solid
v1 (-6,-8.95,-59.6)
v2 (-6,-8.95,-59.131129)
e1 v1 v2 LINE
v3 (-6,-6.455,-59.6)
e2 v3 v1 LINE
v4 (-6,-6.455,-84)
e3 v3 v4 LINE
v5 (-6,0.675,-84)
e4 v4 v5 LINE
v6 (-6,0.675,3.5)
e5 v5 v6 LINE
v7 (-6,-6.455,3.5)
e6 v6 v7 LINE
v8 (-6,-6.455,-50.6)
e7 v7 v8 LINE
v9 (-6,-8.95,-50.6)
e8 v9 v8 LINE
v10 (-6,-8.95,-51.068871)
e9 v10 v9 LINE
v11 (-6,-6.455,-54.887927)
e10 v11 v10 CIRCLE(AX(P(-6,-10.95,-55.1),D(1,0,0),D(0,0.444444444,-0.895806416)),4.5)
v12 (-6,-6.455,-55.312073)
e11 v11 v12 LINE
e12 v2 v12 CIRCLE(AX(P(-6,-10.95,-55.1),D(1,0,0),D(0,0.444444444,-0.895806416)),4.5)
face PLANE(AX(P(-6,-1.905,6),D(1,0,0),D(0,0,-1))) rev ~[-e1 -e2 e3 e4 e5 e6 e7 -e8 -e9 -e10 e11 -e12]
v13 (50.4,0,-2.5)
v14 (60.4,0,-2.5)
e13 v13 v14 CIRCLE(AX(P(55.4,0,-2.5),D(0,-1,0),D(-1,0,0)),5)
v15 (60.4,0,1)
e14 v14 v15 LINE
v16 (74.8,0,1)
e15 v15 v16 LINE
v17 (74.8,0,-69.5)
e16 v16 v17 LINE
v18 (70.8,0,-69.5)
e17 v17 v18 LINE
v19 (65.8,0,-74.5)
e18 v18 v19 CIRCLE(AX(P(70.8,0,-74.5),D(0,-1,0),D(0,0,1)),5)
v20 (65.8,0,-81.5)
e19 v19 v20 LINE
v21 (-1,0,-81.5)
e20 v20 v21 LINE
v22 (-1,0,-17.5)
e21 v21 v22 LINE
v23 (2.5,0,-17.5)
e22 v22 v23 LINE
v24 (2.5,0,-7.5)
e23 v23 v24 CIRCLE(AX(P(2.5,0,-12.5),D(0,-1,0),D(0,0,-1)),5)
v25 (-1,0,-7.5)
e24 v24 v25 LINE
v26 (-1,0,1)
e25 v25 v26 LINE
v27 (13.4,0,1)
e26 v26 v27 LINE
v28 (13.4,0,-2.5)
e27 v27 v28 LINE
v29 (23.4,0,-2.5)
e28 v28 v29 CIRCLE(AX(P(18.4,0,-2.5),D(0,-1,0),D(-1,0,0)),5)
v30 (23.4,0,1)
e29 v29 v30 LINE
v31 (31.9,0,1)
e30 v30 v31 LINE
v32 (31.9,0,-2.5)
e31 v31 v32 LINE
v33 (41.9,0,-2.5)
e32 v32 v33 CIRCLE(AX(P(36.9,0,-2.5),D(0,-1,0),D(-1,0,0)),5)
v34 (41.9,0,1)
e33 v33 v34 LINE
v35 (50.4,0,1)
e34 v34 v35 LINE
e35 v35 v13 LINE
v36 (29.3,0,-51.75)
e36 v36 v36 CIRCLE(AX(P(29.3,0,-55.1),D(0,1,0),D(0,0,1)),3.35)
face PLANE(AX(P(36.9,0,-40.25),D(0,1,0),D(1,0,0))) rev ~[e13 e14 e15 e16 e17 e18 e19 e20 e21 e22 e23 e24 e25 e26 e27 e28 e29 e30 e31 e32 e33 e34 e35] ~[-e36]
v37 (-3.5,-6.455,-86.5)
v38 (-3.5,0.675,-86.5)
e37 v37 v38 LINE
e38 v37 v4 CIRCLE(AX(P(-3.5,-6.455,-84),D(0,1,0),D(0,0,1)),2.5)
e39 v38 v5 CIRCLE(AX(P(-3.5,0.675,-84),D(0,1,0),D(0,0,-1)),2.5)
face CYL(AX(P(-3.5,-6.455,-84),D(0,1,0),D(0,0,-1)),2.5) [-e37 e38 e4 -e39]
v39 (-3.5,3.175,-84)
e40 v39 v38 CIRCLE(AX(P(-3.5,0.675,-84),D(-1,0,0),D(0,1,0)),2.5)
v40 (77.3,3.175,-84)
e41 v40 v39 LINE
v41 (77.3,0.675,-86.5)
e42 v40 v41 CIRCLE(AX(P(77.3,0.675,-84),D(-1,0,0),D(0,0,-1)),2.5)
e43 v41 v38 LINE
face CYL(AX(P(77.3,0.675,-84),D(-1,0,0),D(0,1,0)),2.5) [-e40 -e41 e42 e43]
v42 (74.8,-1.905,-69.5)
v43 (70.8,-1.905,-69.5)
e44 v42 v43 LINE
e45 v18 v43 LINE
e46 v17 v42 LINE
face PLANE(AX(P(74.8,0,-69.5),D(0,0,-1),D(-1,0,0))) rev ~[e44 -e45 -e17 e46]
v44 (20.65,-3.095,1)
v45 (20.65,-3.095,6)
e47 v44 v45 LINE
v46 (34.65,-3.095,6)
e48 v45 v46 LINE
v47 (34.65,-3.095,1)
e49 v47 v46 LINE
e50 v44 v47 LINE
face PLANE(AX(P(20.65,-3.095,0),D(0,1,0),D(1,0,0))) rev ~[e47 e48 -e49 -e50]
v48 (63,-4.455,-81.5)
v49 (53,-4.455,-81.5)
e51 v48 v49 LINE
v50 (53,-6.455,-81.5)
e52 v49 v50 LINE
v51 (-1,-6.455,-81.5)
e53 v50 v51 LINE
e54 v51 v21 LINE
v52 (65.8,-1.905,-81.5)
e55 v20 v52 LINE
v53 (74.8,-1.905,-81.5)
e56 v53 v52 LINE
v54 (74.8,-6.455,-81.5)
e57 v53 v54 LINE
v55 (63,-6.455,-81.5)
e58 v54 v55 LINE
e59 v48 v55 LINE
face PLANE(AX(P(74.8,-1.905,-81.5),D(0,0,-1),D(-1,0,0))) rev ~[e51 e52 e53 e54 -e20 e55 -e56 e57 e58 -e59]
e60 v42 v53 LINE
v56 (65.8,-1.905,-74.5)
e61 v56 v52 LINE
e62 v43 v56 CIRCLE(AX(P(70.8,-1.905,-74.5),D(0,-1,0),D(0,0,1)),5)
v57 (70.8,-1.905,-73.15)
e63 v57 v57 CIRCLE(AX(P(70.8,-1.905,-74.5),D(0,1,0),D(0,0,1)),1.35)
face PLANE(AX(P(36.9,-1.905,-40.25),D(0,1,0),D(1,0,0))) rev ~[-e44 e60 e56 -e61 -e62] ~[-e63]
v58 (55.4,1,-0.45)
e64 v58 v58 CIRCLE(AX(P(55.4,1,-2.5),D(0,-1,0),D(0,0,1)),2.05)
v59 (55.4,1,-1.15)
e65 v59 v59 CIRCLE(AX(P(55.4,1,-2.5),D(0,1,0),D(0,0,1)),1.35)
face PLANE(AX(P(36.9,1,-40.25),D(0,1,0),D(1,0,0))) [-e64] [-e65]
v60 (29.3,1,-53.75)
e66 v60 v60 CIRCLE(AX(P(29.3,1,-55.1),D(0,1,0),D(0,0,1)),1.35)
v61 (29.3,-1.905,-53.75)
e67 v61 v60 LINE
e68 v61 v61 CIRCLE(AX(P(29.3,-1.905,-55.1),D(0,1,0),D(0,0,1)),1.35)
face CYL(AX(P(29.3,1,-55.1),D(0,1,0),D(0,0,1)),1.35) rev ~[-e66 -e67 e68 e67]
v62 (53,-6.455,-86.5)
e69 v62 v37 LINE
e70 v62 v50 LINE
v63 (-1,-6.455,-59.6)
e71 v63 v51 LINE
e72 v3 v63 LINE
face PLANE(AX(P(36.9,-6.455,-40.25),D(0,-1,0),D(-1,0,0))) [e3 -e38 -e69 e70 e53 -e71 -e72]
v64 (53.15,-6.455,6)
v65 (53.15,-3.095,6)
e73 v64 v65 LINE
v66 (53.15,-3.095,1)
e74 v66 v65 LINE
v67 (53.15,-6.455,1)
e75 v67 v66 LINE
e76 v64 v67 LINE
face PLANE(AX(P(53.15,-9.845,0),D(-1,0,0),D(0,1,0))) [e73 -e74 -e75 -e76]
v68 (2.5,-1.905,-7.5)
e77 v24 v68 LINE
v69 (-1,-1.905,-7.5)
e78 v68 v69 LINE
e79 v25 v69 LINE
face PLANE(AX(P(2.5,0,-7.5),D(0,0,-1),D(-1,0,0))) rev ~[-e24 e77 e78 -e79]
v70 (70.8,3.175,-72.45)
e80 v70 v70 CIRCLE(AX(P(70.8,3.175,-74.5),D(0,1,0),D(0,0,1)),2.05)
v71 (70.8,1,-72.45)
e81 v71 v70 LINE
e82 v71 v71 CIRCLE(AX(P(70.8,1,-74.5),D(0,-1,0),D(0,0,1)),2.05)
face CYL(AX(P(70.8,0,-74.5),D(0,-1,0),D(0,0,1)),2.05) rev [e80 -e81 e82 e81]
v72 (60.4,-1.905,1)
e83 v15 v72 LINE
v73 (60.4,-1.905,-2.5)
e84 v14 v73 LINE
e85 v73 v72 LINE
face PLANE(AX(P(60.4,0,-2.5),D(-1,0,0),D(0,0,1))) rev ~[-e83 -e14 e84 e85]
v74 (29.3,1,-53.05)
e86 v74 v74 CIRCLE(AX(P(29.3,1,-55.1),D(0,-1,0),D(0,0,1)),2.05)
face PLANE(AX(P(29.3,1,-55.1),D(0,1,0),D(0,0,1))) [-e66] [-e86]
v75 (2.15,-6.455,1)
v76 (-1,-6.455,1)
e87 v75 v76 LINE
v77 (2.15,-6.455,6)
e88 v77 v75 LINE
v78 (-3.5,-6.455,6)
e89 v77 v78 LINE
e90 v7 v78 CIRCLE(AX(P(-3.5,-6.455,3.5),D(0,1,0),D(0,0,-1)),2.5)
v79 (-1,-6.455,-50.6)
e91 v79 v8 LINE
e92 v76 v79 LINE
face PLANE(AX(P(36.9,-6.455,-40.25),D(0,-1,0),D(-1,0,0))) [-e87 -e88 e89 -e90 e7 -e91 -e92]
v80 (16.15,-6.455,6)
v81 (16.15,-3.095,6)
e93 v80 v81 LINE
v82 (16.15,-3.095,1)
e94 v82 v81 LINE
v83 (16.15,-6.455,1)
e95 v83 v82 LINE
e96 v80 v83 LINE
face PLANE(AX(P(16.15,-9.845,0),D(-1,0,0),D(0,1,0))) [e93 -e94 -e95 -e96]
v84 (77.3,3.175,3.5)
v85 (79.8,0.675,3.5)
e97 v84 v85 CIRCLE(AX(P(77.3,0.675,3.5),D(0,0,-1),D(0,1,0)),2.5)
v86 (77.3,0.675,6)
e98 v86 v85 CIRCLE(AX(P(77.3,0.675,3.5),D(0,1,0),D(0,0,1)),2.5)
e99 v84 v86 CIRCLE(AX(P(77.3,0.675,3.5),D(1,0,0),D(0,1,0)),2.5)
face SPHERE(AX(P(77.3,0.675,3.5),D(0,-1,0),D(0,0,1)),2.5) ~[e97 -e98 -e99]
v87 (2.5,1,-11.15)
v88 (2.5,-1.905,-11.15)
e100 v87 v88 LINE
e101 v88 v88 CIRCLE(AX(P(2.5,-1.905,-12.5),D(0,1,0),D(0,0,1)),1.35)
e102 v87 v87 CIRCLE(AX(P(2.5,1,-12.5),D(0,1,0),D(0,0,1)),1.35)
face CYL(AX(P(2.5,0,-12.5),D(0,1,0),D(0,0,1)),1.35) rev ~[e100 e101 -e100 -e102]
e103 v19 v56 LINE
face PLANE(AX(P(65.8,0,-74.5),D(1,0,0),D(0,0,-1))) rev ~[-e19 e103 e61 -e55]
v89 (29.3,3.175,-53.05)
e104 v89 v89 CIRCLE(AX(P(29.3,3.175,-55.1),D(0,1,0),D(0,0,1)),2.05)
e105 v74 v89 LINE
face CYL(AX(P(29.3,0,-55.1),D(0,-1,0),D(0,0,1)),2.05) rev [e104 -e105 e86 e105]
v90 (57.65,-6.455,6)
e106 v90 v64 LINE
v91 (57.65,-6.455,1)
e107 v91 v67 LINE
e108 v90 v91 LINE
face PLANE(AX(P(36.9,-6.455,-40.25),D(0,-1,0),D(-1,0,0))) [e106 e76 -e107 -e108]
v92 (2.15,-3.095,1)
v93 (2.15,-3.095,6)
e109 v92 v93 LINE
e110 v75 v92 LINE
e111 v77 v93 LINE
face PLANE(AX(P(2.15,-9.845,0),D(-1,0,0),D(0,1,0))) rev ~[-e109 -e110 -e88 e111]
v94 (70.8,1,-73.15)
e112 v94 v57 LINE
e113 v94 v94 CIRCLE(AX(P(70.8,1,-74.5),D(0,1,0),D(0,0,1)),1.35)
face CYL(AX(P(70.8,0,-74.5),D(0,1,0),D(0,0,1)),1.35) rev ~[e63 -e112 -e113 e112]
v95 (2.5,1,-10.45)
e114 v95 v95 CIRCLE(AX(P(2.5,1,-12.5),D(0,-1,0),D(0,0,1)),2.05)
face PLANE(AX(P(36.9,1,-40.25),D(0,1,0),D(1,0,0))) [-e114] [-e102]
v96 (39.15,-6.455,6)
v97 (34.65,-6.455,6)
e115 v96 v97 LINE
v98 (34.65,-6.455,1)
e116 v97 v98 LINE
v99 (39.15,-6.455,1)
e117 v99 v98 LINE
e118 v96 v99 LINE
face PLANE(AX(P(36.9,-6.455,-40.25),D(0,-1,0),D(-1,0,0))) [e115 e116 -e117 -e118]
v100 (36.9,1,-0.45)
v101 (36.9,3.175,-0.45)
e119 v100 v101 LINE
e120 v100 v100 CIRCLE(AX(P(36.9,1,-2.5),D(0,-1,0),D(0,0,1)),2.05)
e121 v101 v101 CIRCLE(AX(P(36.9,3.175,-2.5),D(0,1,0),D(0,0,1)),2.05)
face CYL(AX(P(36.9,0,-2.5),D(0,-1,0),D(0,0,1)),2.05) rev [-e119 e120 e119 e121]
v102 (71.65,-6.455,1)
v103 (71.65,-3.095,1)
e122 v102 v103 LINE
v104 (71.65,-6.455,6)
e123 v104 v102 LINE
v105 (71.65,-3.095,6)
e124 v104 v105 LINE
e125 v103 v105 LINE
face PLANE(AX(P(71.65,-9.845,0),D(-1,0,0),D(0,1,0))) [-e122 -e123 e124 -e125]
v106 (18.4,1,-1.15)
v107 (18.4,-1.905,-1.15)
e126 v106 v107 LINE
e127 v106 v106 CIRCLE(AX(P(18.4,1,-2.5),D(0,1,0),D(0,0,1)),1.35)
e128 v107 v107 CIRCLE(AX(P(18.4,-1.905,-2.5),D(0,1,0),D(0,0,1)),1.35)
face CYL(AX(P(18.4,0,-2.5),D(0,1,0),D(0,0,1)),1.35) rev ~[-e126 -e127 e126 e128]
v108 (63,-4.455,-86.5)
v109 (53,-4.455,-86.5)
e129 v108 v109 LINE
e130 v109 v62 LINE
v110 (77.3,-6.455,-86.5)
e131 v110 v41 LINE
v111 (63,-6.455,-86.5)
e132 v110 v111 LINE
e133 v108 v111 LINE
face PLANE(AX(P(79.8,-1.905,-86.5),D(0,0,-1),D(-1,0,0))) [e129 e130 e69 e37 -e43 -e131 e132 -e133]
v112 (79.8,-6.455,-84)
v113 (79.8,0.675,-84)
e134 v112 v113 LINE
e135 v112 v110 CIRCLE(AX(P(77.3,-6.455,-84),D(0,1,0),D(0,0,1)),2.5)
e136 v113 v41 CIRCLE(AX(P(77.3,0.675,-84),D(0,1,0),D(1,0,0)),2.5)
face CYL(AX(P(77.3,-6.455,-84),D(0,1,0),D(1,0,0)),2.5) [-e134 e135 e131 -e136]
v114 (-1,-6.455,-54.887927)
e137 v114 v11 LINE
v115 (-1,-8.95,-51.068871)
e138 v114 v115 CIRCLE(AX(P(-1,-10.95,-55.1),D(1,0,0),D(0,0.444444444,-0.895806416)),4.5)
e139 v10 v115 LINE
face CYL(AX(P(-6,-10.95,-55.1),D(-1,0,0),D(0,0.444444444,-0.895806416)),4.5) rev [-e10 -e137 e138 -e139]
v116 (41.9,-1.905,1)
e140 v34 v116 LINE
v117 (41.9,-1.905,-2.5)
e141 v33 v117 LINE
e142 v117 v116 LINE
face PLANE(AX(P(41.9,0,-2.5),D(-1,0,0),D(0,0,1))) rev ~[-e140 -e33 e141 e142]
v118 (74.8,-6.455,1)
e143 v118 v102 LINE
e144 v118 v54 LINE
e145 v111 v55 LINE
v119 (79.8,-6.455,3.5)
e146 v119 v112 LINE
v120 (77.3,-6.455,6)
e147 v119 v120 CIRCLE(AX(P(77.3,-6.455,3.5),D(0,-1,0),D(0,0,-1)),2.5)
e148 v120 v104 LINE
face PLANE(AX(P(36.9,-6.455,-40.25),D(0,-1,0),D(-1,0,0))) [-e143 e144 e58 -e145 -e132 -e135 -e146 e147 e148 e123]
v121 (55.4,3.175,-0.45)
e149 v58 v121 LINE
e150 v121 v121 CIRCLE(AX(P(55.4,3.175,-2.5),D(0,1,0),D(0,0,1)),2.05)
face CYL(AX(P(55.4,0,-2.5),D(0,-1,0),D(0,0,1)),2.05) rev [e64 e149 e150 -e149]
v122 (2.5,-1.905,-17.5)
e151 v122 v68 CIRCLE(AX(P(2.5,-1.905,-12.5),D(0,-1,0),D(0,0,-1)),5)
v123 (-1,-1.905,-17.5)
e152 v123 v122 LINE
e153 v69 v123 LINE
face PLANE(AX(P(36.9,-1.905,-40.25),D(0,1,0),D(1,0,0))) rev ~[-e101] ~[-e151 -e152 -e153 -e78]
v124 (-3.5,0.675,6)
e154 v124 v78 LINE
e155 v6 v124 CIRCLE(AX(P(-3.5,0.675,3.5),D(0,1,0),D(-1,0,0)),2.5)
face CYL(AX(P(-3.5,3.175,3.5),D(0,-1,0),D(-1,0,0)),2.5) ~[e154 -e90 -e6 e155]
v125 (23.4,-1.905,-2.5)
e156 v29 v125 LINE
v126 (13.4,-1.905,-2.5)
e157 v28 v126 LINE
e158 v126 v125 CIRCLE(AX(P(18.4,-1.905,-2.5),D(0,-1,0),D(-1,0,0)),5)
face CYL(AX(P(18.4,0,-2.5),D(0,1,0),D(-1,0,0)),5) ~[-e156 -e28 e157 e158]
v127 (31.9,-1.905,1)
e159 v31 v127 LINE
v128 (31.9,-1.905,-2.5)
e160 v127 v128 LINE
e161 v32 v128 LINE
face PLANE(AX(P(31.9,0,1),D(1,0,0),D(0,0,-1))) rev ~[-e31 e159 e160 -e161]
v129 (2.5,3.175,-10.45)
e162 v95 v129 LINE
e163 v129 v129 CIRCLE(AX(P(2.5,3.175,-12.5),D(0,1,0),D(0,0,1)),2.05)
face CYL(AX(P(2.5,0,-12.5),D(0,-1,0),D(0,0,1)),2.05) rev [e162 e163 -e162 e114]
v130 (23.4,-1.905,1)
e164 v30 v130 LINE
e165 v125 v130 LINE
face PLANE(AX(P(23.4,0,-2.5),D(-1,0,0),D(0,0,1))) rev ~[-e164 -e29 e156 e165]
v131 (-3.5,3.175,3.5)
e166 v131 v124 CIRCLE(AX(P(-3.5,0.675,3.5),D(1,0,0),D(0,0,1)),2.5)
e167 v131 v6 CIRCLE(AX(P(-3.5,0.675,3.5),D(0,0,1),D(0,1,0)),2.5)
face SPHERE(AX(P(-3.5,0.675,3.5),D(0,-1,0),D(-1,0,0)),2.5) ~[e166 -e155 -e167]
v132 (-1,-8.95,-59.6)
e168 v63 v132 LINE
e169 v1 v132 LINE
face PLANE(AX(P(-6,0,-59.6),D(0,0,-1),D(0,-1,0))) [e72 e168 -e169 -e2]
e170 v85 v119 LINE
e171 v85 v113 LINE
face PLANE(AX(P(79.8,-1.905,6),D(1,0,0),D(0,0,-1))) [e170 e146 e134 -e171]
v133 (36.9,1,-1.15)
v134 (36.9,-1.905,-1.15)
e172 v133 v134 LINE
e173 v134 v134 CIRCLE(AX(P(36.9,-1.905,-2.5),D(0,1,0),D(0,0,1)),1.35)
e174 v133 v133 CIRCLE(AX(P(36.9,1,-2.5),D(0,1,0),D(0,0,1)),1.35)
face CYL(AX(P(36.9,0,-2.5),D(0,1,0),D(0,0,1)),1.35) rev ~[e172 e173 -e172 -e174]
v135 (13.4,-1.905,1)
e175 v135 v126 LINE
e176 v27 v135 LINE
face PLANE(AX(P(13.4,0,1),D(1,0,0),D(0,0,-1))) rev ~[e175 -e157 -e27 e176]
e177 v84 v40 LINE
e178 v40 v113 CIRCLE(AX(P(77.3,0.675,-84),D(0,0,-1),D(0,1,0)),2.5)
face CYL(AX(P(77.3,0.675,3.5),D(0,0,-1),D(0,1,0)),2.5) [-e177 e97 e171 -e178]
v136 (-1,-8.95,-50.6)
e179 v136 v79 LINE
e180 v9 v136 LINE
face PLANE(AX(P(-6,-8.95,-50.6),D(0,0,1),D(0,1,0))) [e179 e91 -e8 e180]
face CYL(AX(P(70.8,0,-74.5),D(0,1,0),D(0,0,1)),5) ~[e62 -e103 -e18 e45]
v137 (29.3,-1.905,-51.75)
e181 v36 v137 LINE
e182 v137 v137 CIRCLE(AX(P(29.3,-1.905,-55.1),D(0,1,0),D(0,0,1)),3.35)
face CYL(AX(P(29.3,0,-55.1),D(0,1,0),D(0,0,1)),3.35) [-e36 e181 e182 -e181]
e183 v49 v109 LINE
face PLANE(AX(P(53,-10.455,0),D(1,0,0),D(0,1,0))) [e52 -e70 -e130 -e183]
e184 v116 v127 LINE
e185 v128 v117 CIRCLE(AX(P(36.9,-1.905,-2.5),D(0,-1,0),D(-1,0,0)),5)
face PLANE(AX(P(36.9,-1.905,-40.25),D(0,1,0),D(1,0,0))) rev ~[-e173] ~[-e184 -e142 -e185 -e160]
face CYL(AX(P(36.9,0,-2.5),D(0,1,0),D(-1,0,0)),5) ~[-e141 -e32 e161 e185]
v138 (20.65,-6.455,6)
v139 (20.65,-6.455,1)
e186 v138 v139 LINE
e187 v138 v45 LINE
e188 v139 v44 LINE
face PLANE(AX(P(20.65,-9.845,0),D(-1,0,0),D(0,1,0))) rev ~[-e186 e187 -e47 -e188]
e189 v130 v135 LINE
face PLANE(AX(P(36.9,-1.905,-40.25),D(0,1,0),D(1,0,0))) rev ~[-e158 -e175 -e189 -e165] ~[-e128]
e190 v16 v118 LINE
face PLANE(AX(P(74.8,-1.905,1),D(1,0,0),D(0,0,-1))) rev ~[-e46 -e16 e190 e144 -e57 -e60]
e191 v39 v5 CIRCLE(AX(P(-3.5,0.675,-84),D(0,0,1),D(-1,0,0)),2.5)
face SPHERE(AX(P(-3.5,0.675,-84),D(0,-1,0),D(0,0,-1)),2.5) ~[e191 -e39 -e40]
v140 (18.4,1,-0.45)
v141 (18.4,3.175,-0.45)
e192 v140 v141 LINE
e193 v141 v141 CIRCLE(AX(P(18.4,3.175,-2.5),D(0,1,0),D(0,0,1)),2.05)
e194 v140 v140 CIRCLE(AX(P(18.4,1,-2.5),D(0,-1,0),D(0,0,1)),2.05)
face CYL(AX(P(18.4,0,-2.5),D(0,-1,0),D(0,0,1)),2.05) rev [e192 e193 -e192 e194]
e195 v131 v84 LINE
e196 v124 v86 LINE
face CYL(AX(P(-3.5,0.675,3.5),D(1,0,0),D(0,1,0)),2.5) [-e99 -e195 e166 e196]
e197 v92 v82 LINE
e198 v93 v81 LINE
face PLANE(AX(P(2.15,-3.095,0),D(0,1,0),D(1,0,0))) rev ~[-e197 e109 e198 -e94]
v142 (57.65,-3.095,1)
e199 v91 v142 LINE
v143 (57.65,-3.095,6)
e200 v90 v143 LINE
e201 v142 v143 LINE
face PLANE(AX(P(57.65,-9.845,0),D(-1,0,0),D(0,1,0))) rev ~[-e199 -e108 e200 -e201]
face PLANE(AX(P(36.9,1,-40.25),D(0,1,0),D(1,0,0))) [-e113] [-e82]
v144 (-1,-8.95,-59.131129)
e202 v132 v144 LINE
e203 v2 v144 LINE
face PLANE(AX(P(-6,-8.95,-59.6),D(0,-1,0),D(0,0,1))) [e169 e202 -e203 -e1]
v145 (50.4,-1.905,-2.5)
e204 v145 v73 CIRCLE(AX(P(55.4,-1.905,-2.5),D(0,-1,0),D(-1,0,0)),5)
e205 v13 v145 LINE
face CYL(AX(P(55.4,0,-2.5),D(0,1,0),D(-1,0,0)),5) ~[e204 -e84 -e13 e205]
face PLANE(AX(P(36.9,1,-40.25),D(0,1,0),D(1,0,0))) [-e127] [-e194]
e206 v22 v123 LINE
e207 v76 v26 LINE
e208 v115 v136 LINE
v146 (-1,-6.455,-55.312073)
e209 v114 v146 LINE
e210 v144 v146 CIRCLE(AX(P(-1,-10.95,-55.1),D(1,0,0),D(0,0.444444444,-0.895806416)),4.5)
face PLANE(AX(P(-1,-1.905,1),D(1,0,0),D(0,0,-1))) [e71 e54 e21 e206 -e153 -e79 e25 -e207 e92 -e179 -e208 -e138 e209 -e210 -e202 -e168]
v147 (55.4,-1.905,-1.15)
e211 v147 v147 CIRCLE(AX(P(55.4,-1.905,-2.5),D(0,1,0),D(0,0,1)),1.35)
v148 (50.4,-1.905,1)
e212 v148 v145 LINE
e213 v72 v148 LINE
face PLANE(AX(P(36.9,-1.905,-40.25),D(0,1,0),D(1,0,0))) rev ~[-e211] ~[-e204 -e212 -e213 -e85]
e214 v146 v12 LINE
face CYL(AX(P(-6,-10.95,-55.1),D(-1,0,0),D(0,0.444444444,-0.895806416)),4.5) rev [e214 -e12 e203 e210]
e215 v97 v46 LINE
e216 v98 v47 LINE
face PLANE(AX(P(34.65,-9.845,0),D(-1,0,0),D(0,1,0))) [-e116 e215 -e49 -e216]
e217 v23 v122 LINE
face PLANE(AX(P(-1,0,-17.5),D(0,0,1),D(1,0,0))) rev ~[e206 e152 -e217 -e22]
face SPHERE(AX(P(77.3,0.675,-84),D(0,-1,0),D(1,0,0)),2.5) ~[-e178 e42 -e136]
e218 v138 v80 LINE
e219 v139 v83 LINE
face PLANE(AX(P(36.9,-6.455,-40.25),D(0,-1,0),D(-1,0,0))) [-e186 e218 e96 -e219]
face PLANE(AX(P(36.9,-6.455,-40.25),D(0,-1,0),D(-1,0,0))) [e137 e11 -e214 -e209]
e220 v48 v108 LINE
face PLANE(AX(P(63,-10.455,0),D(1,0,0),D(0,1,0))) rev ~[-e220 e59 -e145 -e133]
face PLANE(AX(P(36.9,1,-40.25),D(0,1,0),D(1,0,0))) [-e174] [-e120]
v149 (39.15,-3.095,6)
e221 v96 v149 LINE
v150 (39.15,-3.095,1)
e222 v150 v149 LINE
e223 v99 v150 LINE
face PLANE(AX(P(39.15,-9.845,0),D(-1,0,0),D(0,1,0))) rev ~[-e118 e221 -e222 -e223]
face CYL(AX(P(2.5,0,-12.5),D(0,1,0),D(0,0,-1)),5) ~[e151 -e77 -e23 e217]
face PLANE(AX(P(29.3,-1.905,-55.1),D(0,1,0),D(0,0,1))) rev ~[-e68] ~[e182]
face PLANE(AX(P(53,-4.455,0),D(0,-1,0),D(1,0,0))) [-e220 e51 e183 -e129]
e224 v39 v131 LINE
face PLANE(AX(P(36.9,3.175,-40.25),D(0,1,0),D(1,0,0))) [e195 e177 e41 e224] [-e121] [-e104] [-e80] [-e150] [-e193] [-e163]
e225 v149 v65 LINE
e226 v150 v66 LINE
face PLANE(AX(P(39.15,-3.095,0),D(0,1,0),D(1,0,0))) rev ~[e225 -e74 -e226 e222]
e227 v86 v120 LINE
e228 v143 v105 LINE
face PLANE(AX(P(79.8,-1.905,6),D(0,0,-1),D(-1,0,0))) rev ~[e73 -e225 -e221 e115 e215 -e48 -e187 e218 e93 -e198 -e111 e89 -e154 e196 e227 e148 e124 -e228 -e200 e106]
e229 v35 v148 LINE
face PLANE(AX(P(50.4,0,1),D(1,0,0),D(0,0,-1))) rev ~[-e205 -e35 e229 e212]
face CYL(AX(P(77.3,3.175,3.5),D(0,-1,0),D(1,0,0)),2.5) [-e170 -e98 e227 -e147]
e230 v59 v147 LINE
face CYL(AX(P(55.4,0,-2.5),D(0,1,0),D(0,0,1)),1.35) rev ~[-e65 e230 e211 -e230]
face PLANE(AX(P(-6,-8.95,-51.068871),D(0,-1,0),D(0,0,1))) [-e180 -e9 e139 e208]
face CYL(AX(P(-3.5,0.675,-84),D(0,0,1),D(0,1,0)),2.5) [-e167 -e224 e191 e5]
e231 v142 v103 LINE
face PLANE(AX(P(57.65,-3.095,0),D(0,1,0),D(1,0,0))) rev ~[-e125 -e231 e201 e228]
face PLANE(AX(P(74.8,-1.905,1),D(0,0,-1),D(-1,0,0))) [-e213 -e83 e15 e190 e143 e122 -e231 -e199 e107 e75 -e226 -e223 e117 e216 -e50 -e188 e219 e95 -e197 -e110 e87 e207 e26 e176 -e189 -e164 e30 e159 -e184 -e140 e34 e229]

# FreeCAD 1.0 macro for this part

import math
import FreeCAD as App
import Part
import Sketcher

V = App.Vector


def edges_at(feature, points):
    """Names of the edges that pass closest to the given points."""
    edges = feature.Shape.Edges
    near = lambda p: min(range(len(edges)), key=lambda i: edges[i].distToShape(Part.Vertex(*p))[0])
    return sorted({f"Edge{near(p) + 1}" for p in points})


def add_polygon(sketch, points):
    """Adds a closed chain of lines whose ends are joined by coincident constraints."""
    first, n = sketch.GeometryCount, len(points)
    for a, b in zip(points, points[1:] + points[:1]):
        sketch.addGeometry(Part.LineSegment(App.Vector(*a, 0), App.Vector(*b, 0)), False)
    for i in range(n):
        sketch.addConstraint(Sketcher.Constraint("Coincident", first + i, 2, first + (i + 1) % n, 1))

doc = App.newDocument("Part")
body = doc.addObject("PartDesign::Body", "Body")

# Sketch on XZ plane
sketch1 = body.newObject("Sketcher::SketchObject", "Sketch")
sketch1.AttachmentSupport = (doc.getObject("XZ_Plane"), [""])
sketch1.MapMode = "FlatFace"
add_polygon(sketch1, [(-6, -86.5), (-6, 6), (79.8, 6), (79.8, -86.5)])  # lines 0-3
sketch1.addGeometry(Part.Circle(V(18.4, -2.5, 0), V(0, 0, 1), 2), False)  # 4
sketch1.addGeometry(Part.Circle(V(2.5, -12.5, 0), V(0, 0, 1), 2), False)  # 5
sketch1.addGeometry(Part.Circle(V(36.9, -2.5, 0), V(0, 0, 1), 2), False)  # 6
sketch1.addGeometry(Part.Circle(V(55.4, -2.5, 0), V(0, 0, 1), 2), False)  # 7
sketch1.addGeometry(Part.Circle(V(29.3, -55.1, 0), V(0, 0, 1), 2), False)  # 8
sketch1.addGeometry(Part.Circle(V(70.8, -74.5, 0), V(0, 0, 1), 2), False)  # 9
sketch1.addConstraint([
    Sketcher.Constraint("Vertical", 0),
    Sketcher.Constraint("Horizontal", 1),
    Sketcher.Constraint("Vertical", 2),
    Sketcher.Constraint("Horizontal", 3),
    Sketcher.Constraint("Equal", 4, 5),
    Sketcher.Constraint("Equal", 5, 6),
    Sketcher.Constraint("Equal", 6, 7),
    Sketcher.Constraint("Equal", 7, 8),
    Sketcher.Constraint("Equal", 8, 9),
    Sketcher.Constraint("Horizontal", 4, 3, 6, 3),
    Sketcher.Constraint("Horizontal", 6, 3, 7, 3),
    Sketcher.Constraint("Diameter", 4, 4.1),
    Sketcher.Constraint("DistanceX", 1, 1, 1, 2, 85.8),
    Sketcher.Constraint("DistanceY", 0, 1, 0, 2, 92.5),
    Sketcher.Constraint("DistanceX", 0, 2, -1, 1, 6.0),
    Sketcher.Constraint("DistanceY", -1, 1, 0, 2, 6.0),
    Sketcher.Constraint("DistanceY", 5, 3, 4, 3, 10.0),
    Sketcher.Constraint("DistanceX", 4, 3, 7, 3, 37.0),
    Sketcher.Constraint("DistanceY", 9, 3, 7, 3, 72.0),
    Sketcher.Constraint("DistanceX", 9, 3, 2, 2, 9.0),
    Sketcher.Constraint("DistanceY", 2, 2, 9, 3, 12.0),
    Sketcher.Constraint("DistanceX", -1, 1, 4, 3, 18.4),
    Sketcher.Constraint("DistanceX", -1, 1, 5, 3, 2.5),
    Sketcher.Constraint("DistanceX", -1, 1, 6, 3, 36.9),
    Sketcher.Constraint("DistanceX", -1, 1, 8, 3, 29.3),
    Sketcher.Constraint("DistanceY", 8, 3, -1, 1, 55.1),
])
pad1 = body.newObject("PartDesign::Pad", "Pad")
pad1.Profile = sketch1
pad1.Length = 3.175
pad1.Reversed = True

# Sketch on XZ plane
sketch2 = body.newObject("Sketcher::SketchObject", "Sketch001")
sketch2.AttachmentSupport = (doc.getObject("XZ_Plane"), [""])
sketch2.MapMode = "FlatFace"
add_polygon(sketch2, [(-6, -86.5), (-6, 6), (79.8, 6), (79.8, -86.5)])  # lines 0-3
sketch2.addGeometry(Part.Circle(V(2.5, -12.5, 0), V(0, 0, 1), 1.4), False)  # 4
sketch2.addGeometry(Part.Circle(V(18.4, -2.5, 0), V(0, 0, 1), 1.4), False)  # 5
sketch2.addGeometry(Part.Circle(V(36.9, -2.5, 0), V(0, 0, 1), 1.4), False)  # 6
sketch2.addGeometry(Part.Circle(V(55.4, -2.5, 0), V(0, 0, 1), 1.4), False)  # 7
sketch2.addGeometry(Part.LineSegment(V(65.8, -81.5, 0), V(65.8, -74.5, 0)), False)  # 8
sketch2.addGeometry(Part.ArcOfCircle(Part.Circle(V(70.8, -74.5, 0), V(0, 0, 1), 5), math.radians(90), math.radians(180)), False)  # 9
sketch2.addGeometry(Part.LineSegment(V(70.8, -69.5, 0), V(74.8, -69.5, 0)), False)  # 10
sketch2.addGeometry(Part.LineSegment(V(74.8, -69.5, 0), V(74.8, 1, 0)), False)  # 11
sketch2.addGeometry(Part.LineSegment(V(74.8, 1, 0), V(60.4, 1, 0)), False)  # 12
sketch2.addGeometry(Part.LineSegment(V(60.4, 1, 0), V(60.4, -2.5, 0)), False)  # 13
sketch2.addGeometry(Part.ArcOfCircle(Part.Circle(V(55.4, -2.5, 0), V(0, 0, 1), 5), math.radians(180), math.radians(360)), False)  # 14
sketch2.addGeometry(Part.LineSegment(V(50.4, -2.5, 0), V(50.4, 1, 0)), False)  # 15
sketch2.addGeometry(Part.LineSegment(V(50.4, 1, 0), V(41.9, 1, 0)), False)  # 16
sketch2.addGeometry(Part.LineSegment(V(41.9, 1, 0), V(41.9, -2.5, 0)), False)  # 17
sketch2.addGeometry(Part.ArcOfCircle(Part.Circle(V(36.9, -2.5, 0), V(0, 0, 1), 5), math.radians(180), math.radians(360)), False)  # 18
sketch2.addGeometry(Part.LineSegment(V(31.9, -2.5, 0), V(31.9, 1, 0)), False)  # 19
sketch2.addGeometry(Part.LineSegment(V(31.9, 1, 0), V(23.4, 1, 0)), False)  # 20
sketch2.addGeometry(Part.LineSegment(V(23.4, 1, 0), V(23.4, -2.5, 0)), False)  # 21
sketch2.addGeometry(Part.ArcOfCircle(Part.Circle(V(18.4, -2.5, 0), V(0, 0, 1), 5), math.radians(180), math.radians(360)), False)  # 22
sketch2.addGeometry(Part.LineSegment(V(13.4, -2.5, 0), V(13.4, 1, 0)), False)  # 23
sketch2.addGeometry(Part.LineSegment(V(13.4, 1, 0), V(-1, 1, 0)), False)  # 24
sketch2.addGeometry(Part.LineSegment(V(-1, 1, 0), V(-1, -7.5, 0)), False)  # 25
sketch2.addGeometry(Part.LineSegment(V(-1, -7.5, 0), V(2.5, -7.5, 0)), False)  # 26
sketch2.addGeometry(Part.ArcOfCircle(Part.Circle(V(2.5, -12.5, 0), V(0, 0, 1), 5), math.radians(-90), math.radians(90)), False)  # 27
sketch2.addGeometry(Part.LineSegment(V(2.5, -17.5, 0), V(-1, -17.5, 0)), False)  # 28
sketch2.addGeometry(Part.LineSegment(V(-1, -17.5, 0), V(-1, -81.5, 0)), False)  # 29
sketch2.addGeometry(Part.LineSegment(V(-1, -81.5, 0), V(65.8, -81.5, 0)), False)  # 30
sketch2.addGeometry(Part.Circle(V(70.8, -74.5, 0), V(0, 0, 1), 1.4), False)  # 31
sketch2.addGeometry(Part.Circle(V(29.3, -55.1, 0), V(0, 0, 1), 3.4), False)  # 32
sketch2.addGeometry(Part.Circle(V(29.3, -55.1, 0), V(0, 0, 1), 1.4), False)  # 33
sketch2.addConstraint([
    Sketcher.Constraint("Tangent", 8, 2, 9, 2),
    Sketcher.Constraint("Tangent", 9, 1, 10, 1),
    Sketcher.Constraint("Coincident", 10, 2, 11, 1),
    Sketcher.Constraint("Coincident", 11, 2, 12, 1),
    Sketcher.Constraint("Coincident", 12, 2, 13, 1),
    Sketcher.Constraint("Tangent", 13, 2, 14, 2),
    Sketcher.Constraint("Tangent", 14, 1, 15, 1),
    Sketcher.Constraint("Coincident", 15, 2, 16, 1),
    Sketcher.Constraint("Coincident", 16, 2, 17, 1),
    Sketcher.Constraint("Tangent", 17, 2, 18, 2),
    Sketcher.Constraint("Tangent", 18, 1, 19, 1),
    Sketcher.Constraint("Coincident", 19, 2, 20, 1),
    Sketcher.Constraint("Coincident", 20, 2, 21, 1),
    Sketcher.Constraint("Tangent", 21, 2, 22, 2),
    Sketcher.Constraint("Tangent", 22, 1, 23, 1),
    Sketcher.Constraint("Coincident", 23, 2, 24, 1),
    Sketcher.Constraint("Coincident", 24, 2, 25, 1),
    Sketcher.Constraint("Coincident", 25, 2, 26, 1),
    Sketcher.Constraint("Tangent", 26, 2, 27, 2),
    Sketcher.Constraint("Tangent", 27, 1, 28, 1),
    Sketcher.Constraint("Coincident", 28, 2, 29, 1),
    Sketcher.Constraint("Coincident", 29, 2, 30, 1),
    Sketcher.Constraint("Coincident", 30, 2, 8, 1),
    Sketcher.Constraint("Vertical", 0),
    Sketcher.Constraint("Horizontal", 1),
    Sketcher.Constraint("Vertical", 2),
    Sketcher.Constraint("Horizontal", 3),
    Sketcher.Constraint("Vertical", 8),
    Sketcher.Constraint("Horizontal", 10),
    Sketcher.Constraint("Vertical", 11),
    Sketcher.Constraint("Horizontal", 12),
    Sketcher.Constraint("Vertical", 13),
    Sketcher.Constraint("Vertical", 15),
    Sketcher.Constraint("Horizontal", 16),
    Sketcher.Constraint("Vertical", 17),
    Sketcher.Constraint("Vertical", 19),
    Sketcher.Constraint("Horizontal", 20),
    Sketcher.Constraint("Vertical", 21),
    Sketcher.Constraint("Vertical", 23),
    Sketcher.Constraint("Horizontal", 24),
    Sketcher.Constraint("Vertical", 25),
    Sketcher.Constraint("Horizontal", 26),
    Sketcher.Constraint("Horizontal", 28),
    Sketcher.Constraint("Vertical", 29),
    Sketcher.Constraint("Horizontal", 30),
    Sketcher.Constraint("Coincident", 14, 3, 7, 3),
    Sketcher.Constraint("Coincident", 18, 3, 6, 3),
    Sketcher.Constraint("Coincident", 22, 3, 5, 3),
    Sketcher.Constraint("Coincident", 27, 3, 4, 3),
    Sketcher.Constraint("Coincident", 31, 3, 9, 3),
    Sketcher.Constraint("Coincident", 33, 3, 32, 3),
    Sketcher.Constraint("Equal", 4, 5),
    Sketcher.Constraint("Equal", 5, 6),
    Sketcher.Constraint("Equal", 6, 7),
    Sketcher.Constraint("Equal", 9, 14),
    Sketcher.Constraint("Equal", 14, 18),
    Sketcher.Constraint("Equal", 18, 22),
    Sketcher.Constraint("Equal", 22, 27),
    Sketcher.Constraint("Equal", 7, 31),
    Sketcher.Constraint("Equal", 31, 33),
    Sketcher.Constraint("Horizontal", 5, 3, 6, 3),
    Sketcher.Constraint("Horizontal", 6, 3, 7, 3),
    Sketcher.Constraint("Horizontal", 12, 2, 15, 2),
    Sketcher.Constraint("Horizontal", 16, 2, 19, 2),
    Sketcher.Constraint("Horizontal", 20, 2, 23, 2),
    Sketcher.Constraint("Vertical", 25, 2, 28, 2),
    Sketcher.Constraint("Equal", 16, 20),
    Sketcher.Constraint("Equal", 12, 24),
    Sketcher.Constraint("Equal", 28, 13),
    Sketcher.Constraint("Equal", 20, 25),
    Sketcher.Constraint("Radius", 9, 5.0),
    Sketcher.Constraint("Diameter", 4, 2.7),
    Sketcher.Constraint("Diameter", 32, 6.7),
    Sketcher.Constraint("DistanceX", 10, 1, 10, 2, 4.0),
    Sketcher.Constraint("DistanceY", 8, 1, 8, 2, 7.0),
    Sketcher.Constraint("DistanceY", 29, 2, 29, 1, 64.0),
    Sketcher.Constraint("DistanceX", 1, 1, 1, 2, 85.8),
    Sketcher.Constraint("DistanceX", 12, 2, 12, 1, 14.4),
    Sketcher.Constraint("DistanceX", 16, 2, 16, 1, 8.5),
    Sketcher.Constraint("DistanceX", 26, 1, 26, 2, 3.5),
    Sketcher.Constraint("DistanceY", 0, 1, 0, 2, 92.5),
    Sketcher.Constraint("DistanceX", 0, 2, -1, 1, 6.0),
    Sketcher.Constraint("DistanceY", -1, 1, 0, 2, 6.0),
    Sketcher.Constraint("DistanceY", -1, 1, 11, 2, 1.0),
    Sketcher.Constraint("DistanceX", 24, 2, -1, 1, 1.0),
    Sketcher.Constraint("DistanceX", -1, 1, 32, 3, 29.3),
    Sketcher.Constraint("DistanceY", 32, 3, -1, 1, 55.1),
])
pad2 = body.newObject("PartDesign::Pad", "Pad001")
pad2.Profile = sketch2
pad2.Length = 1.905

# Sketch on XZ plane
sketch3 = body.newObject("Sketcher::SketchObject", "Sketch002")
sketch3.AttachmentSupport = (doc.getObject("XZ_Plane"), [""])
sketch3.MapMode = "FlatFace"
sketch3.AttachmentOffset = App.Placement(V(0, 0, -1), App.Rotation())
add_polygon(sketch3, [(-6, -86.5), (-6, 6), (79.8, 6), (79.8, -86.5)])  # lines 0-3
sketch3.addGeometry(Part.Circle(V(2.5, -12.5, 0), V(0, 0, 1), 1.4), False)  # 4
sketch3.addGeometry(Part.Circle(V(18.4, -2.5, 0), V(0, 0, 1), 1.4), False)  # 5
sketch3.addGeometry(Part.Circle(V(36.9, -2.5, 0), V(0, 0, 1), 1.4), False)  # 6
sketch3.addGeometry(Part.Circle(V(55.4, -2.5, 0), V(0, 0, 1), 1.4), False)  # 7
sketch3.addGeometry(Part.LineSegment(V(65.8, -81.5, 0), V(65.8, -74.5, 0)), False)  # 8
sketch3.addGeometry(Part.ArcOfCircle(Part.Circle(V(70.8, -74.5, 0), V(0, 0, 1), 5), math.radians(90), math.radians(180)), False)  # 9
sketch3.addGeometry(Part.LineSegment(V(70.8, -69.5, 0), V(74.8, -69.5, 0)), False)  # 10
sketch3.addGeometry(Part.LineSegment(V(74.8, -69.5, 0), V(74.8, 1, 0)), False)  # 11
sketch3.addGeometry(Part.LineSegment(V(74.8, 1, 0), V(60.4, 1, 0)), False)  # 12
sketch3.addGeometry(Part.LineSegment(V(60.4, 1, 0), V(60.4, -2.5, 0)), False)  # 13
sketch3.addGeometry(Part.ArcOfCircle(Part.Circle(V(55.4, -2.5, 0), V(0, 0, 1), 5), math.radians(180), math.radians(360)), False)  # 14
sketch3.addGeometry(Part.LineSegment(V(50.4, -2.5, 0), V(50.4, 1, 0)), False)  # 15
sketch3.addGeometry(Part.LineSegment(V(50.4, 1, 0), V(41.9, 1, 0)), False)  # 16
sketch3.addGeometry(Part.LineSegment(V(41.9, 1, 0), V(41.9, -2.5, 0)), False)  # 17
sketch3.addGeometry(Part.ArcOfCircle(Part.Circle(V(36.9, -2.5, 0), V(0, 0, 1), 5), math.radians(180), math.radians(360)), False)  # 18
sketch3.addGeometry(Part.LineSegment(V(31.9, -2.5, 0), V(31.9, 1, 0)), False)  # 19
sketch3.addGeometry(Part.LineSegment(V(31.9, 1, 0), V(23.4, 1, 0)), False)  # 20
sketch3.addGeometry(Part.LineSegment(V(23.4, 1, 0), V(23.4, -2.5, 0)), False)  # 21
sketch3.addGeometry(Part.ArcOfCircle(Part.Circle(V(18.4, -2.5, 0), V(0, 0, 1), 5), math.radians(180), math.radians(360)), False)  # 22
sketch3.addGeometry(Part.LineSegment(V(13.4, -2.5, 0), V(13.4, 1, 0)), False)  # 23
sketch3.addGeometry(Part.LineSegment(V(13.4, 1, 0), V(-1, 1, 0)), False)  # 24
sketch3.addGeometry(Part.LineSegment(V(-1, 1, 0), V(-1, -7.5, 0)), False)  # 25
sketch3.addGeometry(Part.LineSegment(V(-1, -7.5, 0), V(2.5, -7.5, 0)), False)  # 26
sketch3.addGeometry(Part.ArcOfCircle(Part.Circle(V(2.5, -12.5, 0), V(0, 0, 1), 5), math.radians(-90), math.radians(90)), False)  # 27
sketch3.addGeometry(Part.LineSegment(V(2.5, -17.5, 0), V(-1, -17.5, 0)), False)  # 28
sketch3.addGeometry(Part.LineSegment(V(-1, -17.5, 0), V(-1, -81.5, 0)), False)  # 29
sketch3.addGeometry(Part.LineSegment(V(-1, -81.5, 0), V(65.8, -81.5, 0)), False)  # 30
sketch3.addGeometry(Part.Circle(V(70.8, -74.5, 0), V(0, 0, 1), 1.4), False)  # 31
sketch3.addGeometry(Part.Circle(V(29.3, -55.1, 0), V(0, 0, 1), 3.4), False)  # 32
sketch3.addGeometry(Part.Circle(V(29.3, -55.1, 0), V(0, 0, 1), 1.4), False)  # 33
sketch3.addConstraint([
    Sketcher.Constraint("Tangent", 8, 2, 9, 2),
    Sketcher.Constraint("Tangent", 9, 1, 10, 1),
    Sketcher.Constraint("Coincident", 10, 2, 11, 1),
    Sketcher.Constraint("Coincident", 11, 2, 12, 1),
    Sketcher.Constraint("Coincident", 12, 2, 13, 1),
    Sketcher.Constraint("Tangent", 13, 2, 14, 2),
    Sketcher.Constraint("Tangent", 14, 1, 15, 1),
    Sketcher.Constraint("Coincident", 15, 2, 16, 1),
    Sketcher.Constraint("Coincident", 16, 2, 17, 1),
    Sketcher.Constraint("Tangent", 17, 2, 18, 2),
    Sketcher.Constraint("Tangent", 18, 1, 19, 1),
    Sketcher.Constraint("Coincident", 19, 2, 20, 1),
    Sketcher.Constraint("Coincident", 20, 2, 21, 1),
    Sketcher.Constraint("Tangent", 21, 2, 22, 2),
    Sketcher.Constraint("Tangent", 22, 1, 23, 1),
    Sketcher.Constraint("Coincident", 23, 2, 24, 1),
    Sketcher.Constraint("Coincident", 24, 2, 25, 1),
    Sketcher.Constraint("Coincident", 25, 2, 26, 1),
    Sketcher.Constraint("Tangent", 26, 2, 27, 2),
    Sketcher.Constraint("Tangent", 27, 1, 28, 1),
    Sketcher.Constraint("Coincident", 28, 2, 29, 1),
    Sketcher.Constraint("Coincident", 29, 2, 30, 1),
    Sketcher.Constraint("Coincident", 30, 2, 8, 1),
    Sketcher.Constraint("Vertical", 0),
    Sketcher.Constraint("Horizontal", 1),
    Sketcher.Constraint("Vertical", 2),
    Sketcher.Constraint("Horizontal", 3),
    Sketcher.Constraint("Vertical", 8),
    Sketcher.Constraint("Horizontal", 10),
    Sketcher.Constraint("Vertical", 11),
    Sketcher.Constraint("Horizontal", 12),
    Sketcher.Constraint("Vertical", 13),
    Sketcher.Constraint("Vertical", 15),
    Sketcher.Constraint("Horizontal", 16),
    Sketcher.Constraint("Vertical", 17),
    Sketcher.Constraint("Vertical", 19),
    Sketcher.Constraint("Horizontal", 20),
    Sketcher.Constraint("Vertical", 21),
    Sketcher.Constraint("Vertical", 23),
    Sketcher.Constraint("Horizontal", 24),
    Sketcher.Constraint("Vertical", 25),
    Sketcher.Constraint("Horizontal", 26),
    Sketcher.Constraint("Horizontal", 28),
    Sketcher.Constraint("Vertical", 29),
    Sketcher.Constraint("Horizontal", 30),
    Sketcher.Constraint("Coincident", 14, 3, 7, 3),
    Sketcher.Constraint("Coincident", 18, 3, 6, 3),
    Sketcher.Constraint("Coincident", 22, 3, 5, 3),
    Sketcher.Constraint("Coincident", 27, 3, 4, 3),
    Sketcher.Constraint("Coincident", 31, 3, 9, 3),
    Sketcher.Constraint("Coincident", 33, 3, 32, 3),
    Sketcher.Constraint("Equal", 4, 5),
    Sketcher.Constraint("Equal", 5, 6),
    Sketcher.Constraint("Equal", 6, 7),
    Sketcher.Constraint("Equal", 9, 14),
    Sketcher.Constraint("Equal", 14, 18),
    Sketcher.Constraint("Equal", 18, 22),
    Sketcher.Constraint("Equal", 22, 27),
    Sketcher.Constraint("Equal", 7, 31),
    Sketcher.Constraint("Equal", 31, 33),
    Sketcher.Constraint("Horizontal", 5, 3, 6, 3),
    Sketcher.Constraint("Horizontal", 6, 3, 7, 3),
    Sketcher.Constraint("Horizontal", 12, 2, 15, 2),
    Sketcher.Constraint("Horizontal", 16, 2, 19, 2),
    Sketcher.Constraint("Horizontal", 20, 2, 23, 2),
    Sketcher.Constraint("Vertical", 25, 2, 28, 2),
    Sketcher.Constraint("Equal", 16, 20),
    Sketcher.Constraint("Equal", 12, 24),
    Sketcher.Constraint("Equal", 28, 13),
    Sketcher.Constraint("Equal", 20, 25),
    Sketcher.Constraint("Radius", 9, 5.0),
    Sketcher.Constraint("Diameter", 4, 2.7),
    Sketcher.Constraint("Diameter", 32, 6.7),
    Sketcher.Constraint("DistanceX", 10, 1, 10, 2, 4.0),
    Sketcher.Constraint("DistanceY", 8, 1, 8, 2, 7.0),
    Sketcher.Constraint("DistanceY", 29, 2, 29, 1, 64.0),
    Sketcher.Constraint("DistanceX", 1, 1, 1, 2, 85.8),
    Sketcher.Constraint("DistanceX", 12, 2, 12, 1, 14.4),
    Sketcher.Constraint("DistanceX", 16, 2, 16, 1, 8.5),
    Sketcher.Constraint("DistanceX", 26, 1, 26, 2, 3.5),
    Sketcher.Constraint("DistanceY", 0, 1, 0, 2, 92.5),
    Sketcher.Constraint("DistanceX", 0, 2, -1, 1, 6.0),
    Sketcher.Constraint("DistanceY", -1, 1, 0, 2, 6.0),
    Sketcher.Constraint("DistanceY", -1, 1, 11, 2, 1.0),
    Sketcher.Constraint("DistanceX", 24, 2, -1, 1, 1.0),
    Sketcher.Constraint("DistanceX", -1, 1, 32, 3, 29.3),
    Sketcher.Constraint("DistanceY", 32, 3, -1, 1, 55.1),
])
pad3 = body.newObject("PartDesign::Pad", "Pad002")
pad3.Profile = sketch3
pad3.Length = 1

# Sketch on XZ plane
sketch4 = body.newObject("Sketcher::SketchObject", "Sketch003")
sketch4.AttachmentSupport = (doc.getObject("XZ_Plane"), [""])
sketch4.MapMode = "FlatFace"
sketch4.AttachmentOffset = App.Placement(V(0, 0, 1.905), App.Rotation())
add_polygon(sketch4, [(80, -86), (80, 6), (-6, 6), (-6, -86)])  # lines 0-3
add_polygon(sketch4, [(-1, 1), (75, 1), (75, -82), (-1, -82)])  # lines 4-7
sketch4.addConstraint([
    Sketcher.Constraint("Vertical", 0),
    Sketcher.Constraint("Horizontal", 1),
    Sketcher.Constraint("Vertical", 2),
    Sketcher.Constraint("Horizontal", 3),
    Sketcher.Constraint("Horizontal", 4),
    Sketcher.Constraint("Vertical", 5),
    Sketcher.Constraint("Horizontal", 6),
    Sketcher.Constraint("Vertical", 7),
    Sketcher.Constraint("DistanceX", 1, 2, 1, 1, 85.8),
    Sketcher.Constraint("DistanceX", 4, 1, 4, 2, 75.8),
    Sketcher.Constraint("DistanceY", 0, 1, 0, 2, 92.5),
    Sketcher.Constraint("DistanceY", 5, 2, 5, 1, 82.5),
    Sketcher.Constraint("DistanceY", -1, 1, 0, 2, 6.0),
    Sketcher.Constraint("DistanceX", 1, 2, -1, 1, 6.0),
    Sketcher.Constraint("DistanceY", -1, 1, 4, 2, 1.0),
    Sketcher.Constraint("DistanceX", 6, 2, -1, 1, 1.0),
])
pad4 = body.newObject("PartDesign::Pad", "Pad003")
pad4.Profile = sketch4
pad4.Length = 4.55

# Sketch on XY plane
sketch5 = body.newObject("Sketcher::SketchObject", "Sketch004")
sketch5.AttachmentSupport = (doc.getObject("XY_Plane"), [""])
sketch5.MapMode = "FlatFace"
add_polygon(sketch5, [(2, -3), (2, -10), (16, -10), (16, -3)])  # lines 0-3
add_polygon(sketch5, [(21, -3), (21, -10), (35, -10), (35, -3)])  # lines 4-7
add_polygon(sketch5, [(39, -3), (39, -10), (53, -10), (53, -3)])  # lines 8-11
add_polygon(sketch5, [(58, -3), (58, -10), (72, -10), (72, -3)])  # lines 12-15
sketch5.addConstraint([
    Sketcher.Constraint("Vertical", 0),
    Sketcher.Constraint("Horizontal", 1),
    Sketcher.Constraint("Vertical", 2),
    Sketcher.Constraint("Horizontal", 3),
    Sketcher.Constraint("Vertical", 4),
    Sketcher.Constraint("Horizontal", 5),
    Sketcher.Constraint("Vertical", 6),
    Sketcher.Constraint("Horizontal", 7),
    Sketcher.Constraint("Vertical", 8),
    Sketcher.Constraint("Horizontal", 9),
    Sketcher.Constraint("Vertical", 10),
    Sketcher.Constraint("Horizontal", 11),
    Sketcher.Constraint("Vertical", 12),
    Sketcher.Constraint("Horizontal", 13),
    Sketcher.Constraint("Vertical", 14),
    Sketcher.Constraint("Horizontal", 15),
    Sketcher.Constraint("Horizontal", 1, 2, 4, 2),
    Sketcher.Constraint("Horizontal", 3, 2, 6, 2),
    Sketcher.Constraint("Horizontal", 5, 2, 8, 2),
    Sketcher.Constraint("Horizontal", 7, 2, 10, 2),
    Sketcher.Constraint("Horizontal", 9, 2, 12, 2),
    Sketcher.Constraint("Horizontal", 11, 2, 14, 2),
    Sketcher.Constraint("Equal", 3, 5),
    Sketcher.Constraint("Equal", 7, 9),
    Sketcher.Constraint("Equal", 11, 13),
    Sketcher.Constraint("DistanceX", 1, 1, 1, 2, 14.0),
    Sketcher.Constraint("DistanceX", 1, 2, 8, 2, 23.0),
    Sketcher.Constraint("DistanceX", 5, 2, 12, 2, 23.0),
    Sketcher.Constraint("DistanceY", 0, 2, 0, 1, 6.75),
    Sketcher.Constraint("DistanceX", 1, 2, 4, 2, 4.5),
    Sketcher.Constraint("DistanceX", -1, 1, 0, 2, 2.15),
    Sketcher.Constraint("DistanceY", 0, 2, -1, 1, 9.845),
])
pocket1 = body.newObject("PartDesign::Pocket", "Pocket")
pocket1.Profile = sketch5
pocket1.Type = "ThroughAll"
pocket1.Reversed = True

# Sketch on XY plane
sketch6 = body.newObject("Sketcher::SketchObject", "Sketch005")
sketch6.AttachmentSupport = (doc.getObject("XY_Plane"), [""])
sketch6.MapMode = "FlatFace"
add_polygon(sketch6, [(53, -4), (53, -10), (63, -10), (63, -4)])  # lines 0-3
sketch6.addConstraint([
    Sketcher.Constraint("Vertical", 0),
    Sketcher.Constraint("Horizontal", 1),
    Sketcher.Constraint("Vertical", 2),
    Sketcher.Constraint("Horizontal", 3),
    Sketcher.Constraint("DistanceX", 1, 1, 1, 2, 10.0),
    Sketcher.Constraint("DistanceY", 0, 2, 0, 1, 6.0),
    Sketcher.Constraint("DistanceX", -1, 1, 0, 2, 53.0),
    Sketcher.Constraint("DistanceY", 0, 2, -1, 1, 10.455),
])
pocket2 = body.newObject("PartDesign::Pocket", "Pocket001")
pocket2.Profile = sketch6
pocket2.Type = "ThroughAll"

# Sketch on YZ plane
sketch7 = body.newObject("Sketcher::SketchObject", "Sketch006")
sketch7.AttachmentSupport = (doc.getObject("YZ_Plane"), [""])
sketch7.MapMode = "FlatFace"
sketch7.AttachmentOffset = App.Placement(V(0, 0, -6), App.Rotation())
sketch7.addGeometry([
    Part.LineSegment(V(0, -59.6, 0), V(-8.95, -59.6, 0)),  # 0
    Part.LineSegment(V(-8.95, -59.6, 0), V(-8.95, -59.13, 0)),  # 1
    Part.ArcOfCircle(Part.Circle(V(-10.95, -55.1, 0), V(0, 0, 1), 4.5), math.radians(-64), math.radians(64)),  # 2
    Part.LineSegment(V(-8.95, -51.07, 0), V(-8.95, -50.6, 0)),  # 3
    Part.LineSegment(V(-8.95, -50.6, 0), V(0, -50.6, 0)),  # 4
    Part.LineSegment(V(0, -50.6, 0), V(0, -59.6, 0)),  # 5
], False)
sketch7.addConstraint([
    Sketcher.Constraint("Coincident", 0, 2, 1, 1),
    Sketcher.Constraint("Coincident", 1, 2, 2, 1),
    Sketcher.Constraint("Coincident", 2, 2, 3, 1),
    Sketcher.Constraint("Coincident", 3, 2, 4, 1),
    Sketcher.Constraint("Coincident", 4, 2, 5, 1),
    Sketcher.Constraint("Coincident", 5, 2, 0, 1),
    Sketcher.Constraint("Horizontal", 0),
    Sketcher.Constraint("Vertical", 1),
    Sketcher.Constraint("Vertical", 3),
    Sketcher.Constraint("Horizontal", 4),
    Sketcher.Constraint("Vertical", 5),
    Sketcher.Constraint("PointOnObject", 4, 2, -2),
    Sketcher.Constraint("Vertical", 1, 2, 2, 2),
    Sketcher.Constraint("Equal", 1, 3),
    Sketcher.Constraint("Radius", 2, 4.5),
    Sketcher.Constraint("DistanceY", 5, 2, 5, 1, 9.0),
    Sketcher.Constraint("DistanceX", 2, 3, 0, 2, 2.0),
    Sketcher.Constraint("DistanceX", 0, 2, 0, 1, 8.95),
    Sketcher.Constraint("DistanceY", 2, 3, -1, 1, 55.1),
])
pad5 = body.newObject("PartDesign::Pad", "Pad004")
pad5.Profile = sketch7
pad5.Length = 5
doc.recompute()

fillet = body.newObject("PartDesign::Fillet", "Fillet")
fillet.Base = (pad5, edges_at(pad5, [(79.8, -1.64, 6)]))
fillet.Radius = 2.5
doc.recompute()

fillet2 = body.newObject("PartDesign::Fillet", "Fillet001")
fillet2.Base = (fillet, edges_at(fillet, [(79.8, -1.64, -86.5)]))
fillet2.Radius = 2.5
doc.recompute()

fillet3 = body.newObject("PartDesign::Fillet", "Fillet002")
fillet3.Base = (fillet2, edges_at(fillet2, [(-6, -1.64, -86.5)]))
fillet3.Radius = 2.5
doc.recompute()

fillet4 = body.newObject("PartDesign::Fillet", "Fillet003")
fillet4.Base = (fillet3, edges_at(fillet3, [(-6, -1.64, 6)]))
fillet4.Radius = 2.5
doc.recompute()

fillet5 = body.newObject("PartDesign::Fillet", "Fillet004")
fillet5.Base = (fillet4, edges_at(fillet4, [
    (79.8, 3.175, -40.25),
    (79.068, 3.175, 5.268),
    (36.9, 3.175, -86.5),
    (79.068, 3.175, -85.768),
    (-6, 3.175, -40.25),
    (-5.268, 3.175, -85.768),
    (36.9, 3.175, 6),
    (-5.268, 3.175, 5.268),
]))
fillet5.Radius = 2.5

doc.recompute()
